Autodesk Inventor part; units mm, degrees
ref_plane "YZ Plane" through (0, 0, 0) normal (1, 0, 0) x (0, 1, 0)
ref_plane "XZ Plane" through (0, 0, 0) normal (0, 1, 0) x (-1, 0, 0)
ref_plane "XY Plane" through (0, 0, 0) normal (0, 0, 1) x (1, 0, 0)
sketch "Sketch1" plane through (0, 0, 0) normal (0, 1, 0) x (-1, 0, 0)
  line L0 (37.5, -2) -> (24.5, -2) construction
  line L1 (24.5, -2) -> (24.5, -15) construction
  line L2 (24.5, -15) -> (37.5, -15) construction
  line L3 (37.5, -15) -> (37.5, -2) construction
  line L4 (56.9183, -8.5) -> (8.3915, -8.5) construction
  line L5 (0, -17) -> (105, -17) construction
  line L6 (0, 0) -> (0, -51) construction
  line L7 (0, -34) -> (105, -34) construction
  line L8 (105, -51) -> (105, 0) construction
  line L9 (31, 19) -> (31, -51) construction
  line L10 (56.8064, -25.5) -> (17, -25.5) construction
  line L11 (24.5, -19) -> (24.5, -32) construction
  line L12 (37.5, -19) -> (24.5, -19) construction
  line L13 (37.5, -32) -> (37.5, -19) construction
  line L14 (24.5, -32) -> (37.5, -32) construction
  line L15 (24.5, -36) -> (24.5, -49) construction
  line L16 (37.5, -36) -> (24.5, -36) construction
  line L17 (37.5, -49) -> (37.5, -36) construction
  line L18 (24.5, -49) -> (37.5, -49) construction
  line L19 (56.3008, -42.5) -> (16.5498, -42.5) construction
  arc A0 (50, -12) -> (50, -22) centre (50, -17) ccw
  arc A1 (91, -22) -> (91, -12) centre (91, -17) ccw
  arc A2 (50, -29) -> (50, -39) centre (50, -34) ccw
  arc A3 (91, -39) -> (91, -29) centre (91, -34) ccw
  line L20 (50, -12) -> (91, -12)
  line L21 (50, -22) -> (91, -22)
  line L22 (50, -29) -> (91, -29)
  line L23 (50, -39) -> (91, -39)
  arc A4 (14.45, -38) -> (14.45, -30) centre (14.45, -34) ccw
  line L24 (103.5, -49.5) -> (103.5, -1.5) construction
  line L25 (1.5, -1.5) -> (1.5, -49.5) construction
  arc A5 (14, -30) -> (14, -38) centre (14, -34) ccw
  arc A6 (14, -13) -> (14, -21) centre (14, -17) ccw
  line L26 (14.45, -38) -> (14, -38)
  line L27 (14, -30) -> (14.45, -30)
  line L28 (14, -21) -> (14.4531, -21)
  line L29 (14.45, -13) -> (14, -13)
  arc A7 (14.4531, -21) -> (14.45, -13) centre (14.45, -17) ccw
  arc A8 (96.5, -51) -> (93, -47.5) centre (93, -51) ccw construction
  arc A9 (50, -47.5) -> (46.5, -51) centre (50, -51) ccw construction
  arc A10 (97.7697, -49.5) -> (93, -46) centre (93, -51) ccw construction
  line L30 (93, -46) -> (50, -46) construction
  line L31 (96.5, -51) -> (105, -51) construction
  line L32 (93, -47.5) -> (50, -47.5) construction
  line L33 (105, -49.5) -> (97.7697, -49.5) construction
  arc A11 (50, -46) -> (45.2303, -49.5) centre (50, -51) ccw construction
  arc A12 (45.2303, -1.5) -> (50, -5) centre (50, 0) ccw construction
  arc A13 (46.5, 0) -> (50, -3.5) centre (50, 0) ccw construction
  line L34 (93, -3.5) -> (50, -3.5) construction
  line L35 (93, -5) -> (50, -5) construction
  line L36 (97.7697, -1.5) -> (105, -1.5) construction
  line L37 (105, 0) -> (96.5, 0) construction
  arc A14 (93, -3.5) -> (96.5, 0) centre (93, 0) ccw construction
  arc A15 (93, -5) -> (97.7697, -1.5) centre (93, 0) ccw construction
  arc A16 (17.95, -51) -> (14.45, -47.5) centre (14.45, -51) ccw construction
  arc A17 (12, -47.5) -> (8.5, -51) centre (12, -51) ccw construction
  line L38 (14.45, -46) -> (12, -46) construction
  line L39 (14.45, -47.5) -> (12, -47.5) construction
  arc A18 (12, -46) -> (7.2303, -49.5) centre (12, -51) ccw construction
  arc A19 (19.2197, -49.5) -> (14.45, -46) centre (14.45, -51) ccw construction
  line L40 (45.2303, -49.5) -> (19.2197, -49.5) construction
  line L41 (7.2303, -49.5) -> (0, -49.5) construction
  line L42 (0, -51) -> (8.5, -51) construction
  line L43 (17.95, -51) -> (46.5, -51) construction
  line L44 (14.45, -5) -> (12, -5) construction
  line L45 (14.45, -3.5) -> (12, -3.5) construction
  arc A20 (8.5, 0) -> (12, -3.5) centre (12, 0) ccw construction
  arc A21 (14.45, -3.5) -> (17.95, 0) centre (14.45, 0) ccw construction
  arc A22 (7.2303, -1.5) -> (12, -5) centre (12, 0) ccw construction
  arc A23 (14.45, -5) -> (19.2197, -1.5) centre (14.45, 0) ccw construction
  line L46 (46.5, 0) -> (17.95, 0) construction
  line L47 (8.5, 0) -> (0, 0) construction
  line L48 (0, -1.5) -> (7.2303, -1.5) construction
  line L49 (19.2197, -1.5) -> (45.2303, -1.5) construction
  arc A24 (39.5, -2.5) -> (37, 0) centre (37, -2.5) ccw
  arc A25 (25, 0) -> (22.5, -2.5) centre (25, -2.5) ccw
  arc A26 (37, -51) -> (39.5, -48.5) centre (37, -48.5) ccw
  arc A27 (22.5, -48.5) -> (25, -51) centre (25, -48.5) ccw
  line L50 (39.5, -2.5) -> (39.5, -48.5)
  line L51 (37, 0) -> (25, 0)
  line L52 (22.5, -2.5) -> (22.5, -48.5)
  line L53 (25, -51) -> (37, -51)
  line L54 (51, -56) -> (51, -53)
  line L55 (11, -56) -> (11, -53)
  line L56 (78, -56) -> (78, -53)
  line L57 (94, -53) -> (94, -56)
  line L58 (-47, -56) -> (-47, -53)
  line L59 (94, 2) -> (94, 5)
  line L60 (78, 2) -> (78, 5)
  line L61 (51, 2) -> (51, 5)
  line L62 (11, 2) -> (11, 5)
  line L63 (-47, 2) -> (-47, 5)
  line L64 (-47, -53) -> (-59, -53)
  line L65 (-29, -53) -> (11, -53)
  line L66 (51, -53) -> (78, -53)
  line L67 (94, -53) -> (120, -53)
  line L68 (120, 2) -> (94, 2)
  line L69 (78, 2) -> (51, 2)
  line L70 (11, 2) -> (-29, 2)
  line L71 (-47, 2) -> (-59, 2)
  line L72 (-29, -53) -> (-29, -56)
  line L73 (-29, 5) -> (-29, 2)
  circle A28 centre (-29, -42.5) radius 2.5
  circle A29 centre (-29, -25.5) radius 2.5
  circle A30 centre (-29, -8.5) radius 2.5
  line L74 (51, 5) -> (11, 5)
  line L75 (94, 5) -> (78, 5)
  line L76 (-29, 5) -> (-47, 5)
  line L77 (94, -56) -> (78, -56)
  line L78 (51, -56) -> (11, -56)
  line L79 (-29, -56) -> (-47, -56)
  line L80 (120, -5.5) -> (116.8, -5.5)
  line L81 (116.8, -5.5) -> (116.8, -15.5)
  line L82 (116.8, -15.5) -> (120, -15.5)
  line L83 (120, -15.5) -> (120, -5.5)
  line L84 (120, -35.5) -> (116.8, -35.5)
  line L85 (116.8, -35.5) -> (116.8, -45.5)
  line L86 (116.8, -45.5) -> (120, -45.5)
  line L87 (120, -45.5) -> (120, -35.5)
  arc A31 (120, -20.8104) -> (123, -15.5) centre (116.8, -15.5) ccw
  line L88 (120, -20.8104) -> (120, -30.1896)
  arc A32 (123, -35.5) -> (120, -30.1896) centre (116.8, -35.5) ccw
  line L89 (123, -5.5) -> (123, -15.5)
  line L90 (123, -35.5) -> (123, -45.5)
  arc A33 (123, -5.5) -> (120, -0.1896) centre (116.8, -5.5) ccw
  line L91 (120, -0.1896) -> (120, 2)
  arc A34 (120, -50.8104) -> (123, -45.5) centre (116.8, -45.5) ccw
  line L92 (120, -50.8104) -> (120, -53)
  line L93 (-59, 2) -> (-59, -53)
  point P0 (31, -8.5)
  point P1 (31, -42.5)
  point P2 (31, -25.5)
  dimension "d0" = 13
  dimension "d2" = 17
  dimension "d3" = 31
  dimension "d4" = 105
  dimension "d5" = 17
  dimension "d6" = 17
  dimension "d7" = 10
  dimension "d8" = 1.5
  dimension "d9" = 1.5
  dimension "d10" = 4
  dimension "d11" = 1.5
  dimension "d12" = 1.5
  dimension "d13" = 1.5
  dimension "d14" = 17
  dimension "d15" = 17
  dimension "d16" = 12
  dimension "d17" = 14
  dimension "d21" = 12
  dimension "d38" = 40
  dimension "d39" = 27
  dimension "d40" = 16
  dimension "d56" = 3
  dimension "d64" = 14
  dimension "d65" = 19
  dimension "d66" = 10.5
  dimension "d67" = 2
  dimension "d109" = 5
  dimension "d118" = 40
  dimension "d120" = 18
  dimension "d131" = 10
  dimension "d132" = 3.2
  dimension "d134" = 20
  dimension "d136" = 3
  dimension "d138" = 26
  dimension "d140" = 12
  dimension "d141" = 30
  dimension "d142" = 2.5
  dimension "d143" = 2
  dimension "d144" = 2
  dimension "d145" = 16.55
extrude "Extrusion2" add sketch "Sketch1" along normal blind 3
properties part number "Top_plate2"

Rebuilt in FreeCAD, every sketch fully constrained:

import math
import FreeCAD as App
import Part
import Sketcher

V = App.Vector
Q = App.Units.Quantity

doc = App.newDocument("Part")
params = doc.addObject("Spreadsheet::Sheet", "Params")
for row, (alias, value) in enumerate([
    ("sketch1_diameter", "5 mm"),
    ("sketch1_radius", "4 mm"),
    ("sketch1_radius2", "5 mm"),
    ("sketch1_width", "40 mm"),
    ("sketch1_width2", "27 mm"),
    ("pad1_length", "3 mm"),
], start=1):
    params.set(f"A{row}", alias)
    params.set(f"B{row}", "=" + value)
    params.setAlias(f"B{row}", alias)

body = doc.addObject("PartDesign::Body", "Body")

# Sketch on XZ plane
sketch1 = doc.addObject("Sketcher::SketchObject", "Sketch")
body.addObject(sketch1)
sketch1.AttachmentSupport = (doc.XZ_Plane, [""])
sketch1.MapMode = "FlatFace"
sketch1.addGeometry([
    Part.LineSegment(V(-11, -56, 0), V(-51, -56, 0)),  # 0
    Part.LineSegment(V(-51, -56, 0), V(-51, -53, 0)),  # 1
    Part.LineSegment(V(-51, -53, 0), V(-78, -53, 0)),  # 2
    Part.LineSegment(V(-78, -53, 0), V(-78, -56, 0)),  # 3
    Part.LineSegment(V(-78, -56, 0), V(-94, -56, 0)),  # 4
    Part.LineSegment(V(-94, -56, 0), V(-94, -53, 0)),  # 5
    Part.LineSegment(V(-94, -53, 0), V(-120, -53, 0)),  # 6
    Part.LineSegment(V(-120, -53, 0), V(-120, -50.81, 0)),  # 7
    Part.ArcOfCircle(Part.Circle(V(-116.8, -45.5, 0), V(0, 0, 1), 6.2), math.radians(180), math.radians(239)),  # 8
    Part.LineSegment(V(-123, -45.5, 0), V(-123, -35.5, 0)),  # 9
    Part.ArcOfCircle(Part.Circle(V(-116.8, -35.5, 0), V(0, 0, 1), 6.2), math.radians(121), math.radians(180)),  # 10
    Part.LineSegment(V(-120, -30.19, 0), V(-120, -20.81, 0)),  # 11
    Part.ArcOfCircle(Part.Circle(V(-116.8, -15.5, 0), V(0, 0, 1), 6.2), math.radians(180), math.radians(239)),  # 12
    Part.LineSegment(V(-123, -15.5, 0), V(-123, -5.5, 0)),  # 13
    Part.ArcOfCircle(Part.Circle(V(-116.8, -5.5, 0), V(0, 0, 1), 6.2), math.radians(121), math.radians(180)),  # 14
    Part.LineSegment(V(-120, -0.19, 0), V(-120, 2, 0)),  # 15
    Part.LineSegment(V(-120, 2, 0), V(-94, 2, 0)),  # 16
    Part.LineSegment(V(-94, 2, 0), V(-94, 5, 0)),  # 17
    Part.LineSegment(V(-94, 5, 0), V(-78, 5, 0)),  # 18
    Part.LineSegment(V(-78, 5, 0), V(-78, 2, 0)),  # 19
    Part.LineSegment(V(-78, 2, 0), V(-51, 2, 0)),  # 20
    Part.LineSegment(V(-51, 2, 0), V(-51, 5, 0)),  # 21
    Part.LineSegment(V(-51, 5, 0), V(-11, 5, 0)),  # 22
    Part.LineSegment(V(-11, 5, 0), V(-11, 2, 0)),  # 23
    Part.LineSegment(V(-11, 2, 0), V(29, 2, 0)),  # 24
    Part.LineSegment(V(29, 2, 0), V(29, 5, 0)),  # 25
    Part.LineSegment(V(29, 5, 0), V(47, 5, 0)),  # 26
    Part.LineSegment(V(47, 5, 0), V(47, 2, 0)),  # 27
    Part.LineSegment(V(47, 2, 0), V(59, 2, 0)),  # 28
    Part.LineSegment(V(59, 2, 0), V(59, -53, 0)),  # 29
    Part.LineSegment(V(59, -53, 0), V(47, -53, 0)),  # 30
    Part.LineSegment(V(47, -53, 0), V(47, -56, 0)),  # 31
    Part.LineSegment(V(47, -56, 0), V(29, -56, 0)),  # 32
    Part.LineSegment(V(29, -56, 0), V(29, -53, 0)),  # 33
    Part.LineSegment(V(29, -53, 0), V(-11, -53, 0)),  # 34
    Part.LineSegment(V(-11, -53, 0), V(-11, -56, 0)),  # 35
    Part.Circle(V(29, -42.5, 0), V(0, 0, 1), 2.5),  # 36
    Part.ArcOfCircle(Part.Circle(V(-14.45, -34, 0), V(0, 0, 1), 4), math.radians(90), math.radians(270)),  # 37
    Part.LineSegment(V(-14.45, -38, 0), V(-14, -38, 0)),  # 38
    Part.ArcOfCircle(Part.Circle(V(-14, -34, 0), V(0, 0, 1), 4), math.radians(-90), math.radians(90)),  # 39
    Part.LineSegment(V(-14, -30, 0), V(-14.45, -30, 0)),  # 40
    Part.ArcOfCircle(Part.Circle(V(-50, -34, 0), V(0, 0, 1), 5), math.radians(-90), math.radians(90)),  # 41
    Part.LineSegment(V(-50, -29, 0), V(-91, -29, 0)),  # 42
    Part.ArcOfCircle(Part.Circle(V(-91, -34, 0), V(0, 0, 1), 5), math.radians(90), math.radians(270)),  # 43
    Part.LineSegment(V(-91, -39, 0), V(-50, -39, 0)),  # 44
    Part.LineSegment(V(-116.8, -35.5, 0), V(-120, -35.5, 0)),  # 45
    Part.LineSegment(V(-120, -35.5, 0), V(-120, -45.5, 0)),  # 46
    Part.LineSegment(V(-120, -45.5, 0), V(-116.8, -45.5, 0)),  # 47
    Part.LineSegment(V(-116.8, -45.5, 0), V(-116.8, -35.5, 0)),  # 48
    Part.Circle(V(29, -25.5, 0), V(0, 0, 1), 2.5),  # 49
    Part.ArcOfCircle(Part.Circle(V(-37, -2.5, 0), V(0, 0, 1), 2.5), math.radians(90), math.radians(180)),  # 50
    Part.LineSegment(V(-39.5, -2.5, 0), V(-39.5, -48.5, 0)),  # 51
    Part.ArcOfCircle(Part.Circle(V(-37, -48.5, 0), V(0, 0, 1), 2.5), math.radians(180), math.radians(270)),  # 52
    Part.LineSegment(V(-37, -51, 0), V(-25, -51, 0)),  # 53
    Part.ArcOfCircle(Part.Circle(V(-25, -48.5, 0), V(0, 0, 1), 2.5), math.radians(-90), math.radians(0)),  # 54
    Part.LineSegment(V(-22.5, -48.5, 0), V(-22.5, -2.5, 0)),  # 55
    Part.ArcOfCircle(Part.Circle(V(-25, -2.5, 0), V(0, 0, 1), 2.5), math.radians(0), math.radians(90)),  # 56
    Part.LineSegment(V(-25, 0, 0), V(-37, 0, 0)),  # 57
    Part.ArcOfCircle(Part.Circle(V(-14, -17, 0), V(0, 0, 1), 4), math.radians(-90), math.radians(90)),  # 58
    Part.LineSegment(V(-14, -13, 0), V(-14.45, -13, 0)),  # 59
    Part.ArcOfCircle(Part.Circle(V(-14.45, -17, 0), V(0, 0, 1), 4), math.radians(90), math.radians(270)),  # 60
    Part.LineSegment(V(-14.45, -21, 0), V(-14, -21, 0)),  # 61
    Part.Circle(V(29, -8.5, 0), V(0, 0, 1), 2.5),  # 62
    Part.ArcOfCircle(Part.Circle(V(-50, -17, 0), V(0, 0, 1), 5), math.radians(-90), math.radians(90)),  # 63
    Part.LineSegment(V(-50, -12, 0), V(-91, -12, 0)),  # 64
    Part.ArcOfCircle(Part.Circle(V(-91, -17, 0), V(0, 0, 1), 5), math.radians(90), math.radians(270)),  # 65
    Part.LineSegment(V(-91, -22, 0), V(-50, -22, 0)),  # 66
    Part.LineSegment(V(-116.8, -5.5, 0), V(-120, -5.5, 0)),  # 67
    Part.LineSegment(V(-120, -5.5, 0), V(-120, -15.5, 0)),  # 68
    Part.LineSegment(V(-120, -15.5, 0), V(-116.8, -15.5, 0)),  # 69
    Part.LineSegment(V(-116.8, -15.5, 0), V(-116.8, -5.5, 0)),  # 70
], False)
sketch1.addConstraint([
    Sketcher.Constraint("Coincident", 0, 2, 1, 1),
    Sketcher.Constraint("Coincident", 1, 2, 2, 1),
    Sketcher.Constraint("Coincident", 2, 2, 3, 1),
    Sketcher.Constraint("Coincident", 3, 2, 4, 1),
    Sketcher.Constraint("Coincident", 4, 2, 5, 1),
    Sketcher.Constraint("Coincident", 5, 2, 6, 1),
    Sketcher.Constraint("Coincident", 6, 2, 7, 1),
    Sketcher.Constraint("Coincident", 7, 2, 8, 2),
    Sketcher.Constraint("Tangent", 8, 1, 9, 1),
    Sketcher.Constraint("Tangent", 9, 2, 10, 2),
    Sketcher.Constraint("Coincident", 10, 1, 11, 1),
    Sketcher.Constraint("Coincident", 11, 2, 12, 2),
    Sketcher.Constraint("Tangent", 12, 1, 13, 1),
    Sketcher.Constraint("Tangent", 13, 2, 14, 2),
    Sketcher.Constraint("Coincident", 14, 1, 15, 1),
    Sketcher.Constraint("Coincident", 15, 2, 16, 1),
    Sketcher.Constraint("Coincident", 16, 2, 17, 1),
    Sketcher.Constraint("Coincident", 17, 2, 18, 1),
    Sketcher.Constraint("Coincident", 18, 2, 19, 1),
    Sketcher.Constraint("Coincident", 19, 2, 20, 1),
    Sketcher.Constraint("Coincident", 20, 2, 21, 1),
    Sketcher.Constraint("Coincident", 21, 2, 22, 1),
    Sketcher.Constraint("Coincident", 22, 2, 23, 1),
    Sketcher.Constraint("Coincident", 23, 2, 24, 1),
    Sketcher.Constraint("Coincident", 24, 2, 25, 1),
    Sketcher.Constraint("Coincident", 25, 2, 26, 1),
    Sketcher.Constraint("Coincident", 26, 2, 27, 1),
    Sketcher.Constraint("Coincident", 27, 2, 28, 1),
    Sketcher.Constraint("Coincident", 28, 2, 29, 1),
    Sketcher.Constraint("Coincident", 29, 2, 30, 1),
    Sketcher.Constraint("Coincident", 30, 2, 31, 1),
    Sketcher.Constraint("Coincident", 31, 2, 32, 1),
    Sketcher.Constraint("Coincident", 32, 2, 33, 1),
    Sketcher.Constraint("Coincident", 33, 2, 34, 1),
    Sketcher.Constraint("Coincident", 34, 2, 35, 1),
    Sketcher.Constraint("Coincident", 35, 2, 0, 1),
    Sketcher.Constraint("Tangent", 37, 2, 38, 1),
    Sketcher.Constraint("Tangent", 38, 2, 39, 1),
    Sketcher.Constraint("Tangent", 39, 2, 40, 1),
    Sketcher.Constraint("Tangent", 40, 2, 37, 1),
    Sketcher.Constraint("Tangent", 41, 2, 42, 1),
    Sketcher.Constraint("Tangent", 42, 2, 43, 1),
    Sketcher.Constraint("Tangent", 43, 2, 44, 1),
    Sketcher.Constraint("Tangent", 44, 2, 41, 1),
    Sketcher.Constraint("Coincident", 45, 2, 46, 1),
    Sketcher.Constraint("Coincident", 46, 2, 47, 1),
    Sketcher.Constraint("Coincident", 47, 2, 48, 1),
    Sketcher.Constraint("Coincident", 48, 2, 45, 1),
    Sketcher.Constraint("Tangent", 50, 2, 51, 1),
    Sketcher.Constraint("Tangent", 51, 2, 52, 1),
    Sketcher.Constraint("Tangent", 52, 2, 53, 1),
    Sketcher.Constraint("Tangent", 53, 2, 54, 1),
    Sketcher.Constraint("Tangent", 54, 2, 55, 1),
    Sketcher.Constraint("Tangent", 55, 2, 56, 1),
    Sketcher.Constraint("Tangent", 56, 2, 57, 1),
    Sketcher.Constraint("Tangent", 57, 2, 50, 1),
    Sketcher.Constraint("Tangent", 58, 2, 59, 1),
    Sketcher.Constraint("Tangent", 59, 2, 60, 1),
    Sketcher.Constraint("Coincident", 60, 2, 61, 1),
    Sketcher.Constraint("Tangent", 61, 2, 58, 1),
    Sketcher.Constraint("Tangent", 63, 2, 64, 1),
    Sketcher.Constraint("Tangent", 64, 2, 65, 1),
    Sketcher.Constraint("Tangent", 65, 2, 66, 1),
    Sketcher.Constraint("Tangent", 66, 2, 63, 1),
    Sketcher.Constraint("Coincident", 67, 2, 68, 1),
    Sketcher.Constraint("Coincident", 68, 2, 69, 1),
    Sketcher.Constraint("Coincident", 69, 2, 70, 1),
    Sketcher.Constraint("Coincident", 70, 2, 67, 1),
    Sketcher.Constraint("Horizontal", 0),
    Sketcher.Constraint("Vertical", 1),
    Sketcher.Constraint("Horizontal", 2),
    Sketcher.Constraint("Vertical", 3),
    Sketcher.Constraint("Horizontal", 4),
    Sketcher.Constraint("Vertical", 5),
    Sketcher.Constraint("Horizontal", 6),
    Sketcher.Constraint("Vertical", 7),
    Sketcher.Constraint("Vertical", 9),
    Sketcher.Constraint("Vertical", 11),
    Sketcher.Constraint("Vertical", 13),
    Sketcher.Constraint("Vertical", 15),
    Sketcher.Constraint("Horizontal", 16),
    Sketcher.Constraint("Vertical", 17),
    Sketcher.Constraint("Horizontal", 18),
    Sketcher.Constraint("Vertical", 19),
    Sketcher.Constraint("Horizontal", 20),
    Sketcher.Constraint("Vertical", 21),
    Sketcher.Constraint("Horizontal", 22),
    Sketcher.Constraint("Vertical", 23),
    Sketcher.Constraint("Horizontal", 24),
    Sketcher.Constraint("Vertical", 25),
    Sketcher.Constraint("Horizontal", 26),
    Sketcher.Constraint("Vertical", 27),
    Sketcher.Constraint("Horizontal", 28),
    Sketcher.Constraint("Vertical", 29),
    Sketcher.Constraint("Horizontal", 30),
    Sketcher.Constraint("Vertical", 31),
    Sketcher.Constraint("Horizontal", 32),
    Sketcher.Constraint("Vertical", 33),
    Sketcher.Constraint("Horizontal", 34),
    Sketcher.Constraint("Vertical", 35),
    Sketcher.Constraint("Horizontal", 38),
    Sketcher.Constraint("Horizontal", 40),
    Sketcher.Constraint("Horizontal", 42),
    Sketcher.Constraint("Horizontal", 44),
    Sketcher.Constraint("Horizontal", 45),
    Sketcher.Constraint("Vertical", 46),
    Sketcher.Constraint("Horizontal", 47),
    Sketcher.Constraint("Vertical", 48),
    Sketcher.Constraint("Vertical", 51),
    Sketcher.Constraint("Horizontal", 53),
    Sketcher.Constraint("Vertical", 55),
    Sketcher.Constraint("Horizontal", 57),
    Sketcher.Constraint("Horizontal", 59),
    Sketcher.Constraint("Horizontal", 61),
    Sketcher.Constraint("Horizontal", 64),
    Sketcher.Constraint("Horizontal", 66),
    Sketcher.Constraint("Horizontal", 67),
    Sketcher.Constraint("Vertical", 68),
    Sketcher.Constraint("Horizontal", 69),
    Sketcher.Constraint("Vertical", 70),
    Sketcher.Constraint("Coincident", 47, 2, 8, 3),
    Sketcher.Constraint("Coincident", 48, 2, 10, 3),
    Sketcher.Constraint("Coincident", 69, 2, 12, 3),
    Sketcher.Constraint("Coincident", 70, 2, 14, 3),
    Sketcher.Constraint("Equal", 10, 12),
    Sketcher.Constraint("Equal", 36, 49),
    Sketcher.Constraint("Equal", 49, 50),
    Sketcher.Constraint("Equal", 50, 52),
    Sketcher.Constraint("Equal", 52, 54),
    Sketcher.Constraint("Equal", 54, 56),
    Sketcher.Constraint("Equal", 39, 58),
    Sketcher.Constraint("Equal", 56, 62),
    Sketcher.Constraint("Equal", 43, 63),
    Sketcher.Constraint("PointOnObject", 56, 2, -1),
    Sketcher.Constraint("Horizontal", 39, 3, 41, 3),
    Sketcher.Constraint("Horizontal", 60, 3, 63, 3),
    Sketcher.Constraint("Horizontal", 0, 2, 3, 2),
    Sketcher.Constraint("Horizontal", 2, 2, 5, 2),
    Sketcher.Constraint("Horizontal", 16, 2, 19, 2),
    Sketcher.Constraint("Horizontal", 18, 2, 21, 2),
    Sketcher.Constraint("Horizontal", 20, 2, 23, 2),
    Sketcher.Constraint("Horizontal", 22, 2, 25, 2),
    Sketcher.Constraint("Horizontal", 24, 2, 27, 2),
    Sketcher.Constraint("Horizontal", 6, 2, 29, 2),
    Sketcher.Constraint("Horizontal", 4, 2, 31, 2),
    Sketcher.Constraint("Horizontal", 30, 2, 33, 2),
    Sketcher.Constraint("Vertical", 10, 3, 12, 3),
    Sketcher.Constraint("Vertical", 36, 3, 49, 3),
    Sketcher.Constraint("Vertical", 39, 3, 58, 3),
    Sketcher.Constraint("Vertical", 37, 3, 60, 3),
    Sketcher.Constraint("Vertical", 49, 3, 62, 3),
    Sketcher.Constraint("Vertical", 41, 3, 63, 3),
    Sketcher.Constraint("Vertical", 43, 3, 65, 3),
    Sketcher.Constraint("Vertical", 7, 2, 10, 1),
    Sketcher.Constraint("Vertical", 11, 2, 14, 1),
    Sketcher.Constraint("Vertical", 5, 2, 16, 2),
    Sketcher.Constraint("Vertical", 3, 2, 18, 2),
    Sketcher.Constraint("Vertical", 1, 2, 20, 2),
    Sketcher.Constraint("Vertical", 62, 3, 24, 2),
    Sketcher.Constraint("Vertical", 27, 2, 30, 2),
    Sketcher.Constraint("Vertical", 25, 2, 32, 2),
    Sketcher.Constraint("Vertical", 23, 2, 34, 2),
    Sketcher.Constraint("Vertical", 15, 2, 45, 2),
    Sketcher.Constraint("Vertical", 46, 2, 67, 2),
    Sketcher.Constraint("Equal", 22, 24),
    Sketcher.Constraint("Equal", 30, 53),
    Sketcher.Constraint("Equal", 9, 13),
    Sketcher.Constraint("Equal", 7, 15),
    Sketcher.Constraint("Equal", 5, 17),
    Sketcher.Constraint("Diameter", 36, Q("5 mm")),
    Sketcher.Constraint("Radius", 37, Q("4 mm")),
    Sketcher.Constraint("Radius", 41, Q("5 mm")),
    Sketcher.Constraint("DistanceX", 0, 2, 0, 1, Q("40 mm")),
    Sketcher.Constraint("DistanceX", 2, 2, 2, 1, Q("27 mm")),
    Sketcher.Constraint("DistanceX", 4, 2, 4, 1, Q("16 mm")),
    Sketcher.Constraint("DistanceX", 6, 2, 6, 1, Q("26 mm")),
    Sketcher.Constraint("DistanceX", 26, 1, 26, 2, Q("18 mm")),
    Sketcher.Constraint("DistanceX", 28, 1, 28, 2, Q("12 mm")),
    Sketcher.Constraint("DistanceY", 1, 1, 1, 2, Q("3 mm")),
    Sketcher.Constraint("DistanceY", 9, 1, 9, 2, Q("10 mm")),
    Sketcher.Constraint("DistanceX", 45, 2, 45, 1, Q("3.2 mm")),
    Sketcher.Constraint("DistanceX", 39, 3, -1, 1, Q("14 mm")),
    Sketcher.Constraint("DistanceY", 58, 3, -1, 1, Q("17 mm")),
    Sketcher.Constraint("DistanceY", -1, 1, 15, 2, Q("2 mm")),
    Sketcher.Constraint("DistanceY", 39, 2, -1, 1, Q("30 mm")),
    Sketcher.Constraint("Radius", 8, Q("6.2 mm")),
    Sketcher.Constraint("DistanceX", 42, 2, 42, 1, Q("41 mm")),
    Sketcher.Constraint("DistanceY", 29, 2, 29, 1, Q("55 mm")),
    Sketcher.Constraint("DistanceY", 51, 2, 51, 1, Q("46 mm")),
    Sketcher.Constraint("DistanceX", -1, 1, 36, 3, Q("29 mm")),
    Sketcher.Constraint("DistanceX", 41, 3, -1, 1, Q("50 mm")),
    Sketcher.Constraint("DistanceX", 50, 3, -1, 1, Q("37 mm")),
    Sketcher.Constraint("DistanceX", 38, 1, 38, 2, Q("0.45 mm")),
    Sketcher.Constraint("DistanceY", 8, 3, -1, 1, Q("45.5 mm")),
    Sketcher.Constraint("DistanceY", 36, 3, -1, 1, Q("42.5 mm")),
    Sketcher.Constraint("DistanceY", 49, 3, -1, 1, Q("25.5 mm")),
    Sketcher.Constraint("DistanceY", 62, 3, -1, 1, Q("8.5 mm")),
    Sketcher.Constraint("DistanceX", 61, 1, 61, 2, Q("0.453 mm")),
])
sketch1.setExpression("Constraints[169]", "Params.sketch1_diameter")
sketch1.setExpression("Constraints[170]", "Params.sketch1_radius")
sketch1.setExpression("Constraints[171]", "Params.sketch1_radius2")
sketch1.setExpression("Constraints[172]", "Params.sketch1_width")
sketch1.setExpression("Constraints[173]", "Params.sketch1_width2")
pad1 = doc.addObject("PartDesign::Pad", "Pad")
body.addObject(pad1)
pad1.Profile = sketch1
pad1.setExpression("Length", "Params.pad1_length")
pad1.Reversed = True

doc.recompute()
